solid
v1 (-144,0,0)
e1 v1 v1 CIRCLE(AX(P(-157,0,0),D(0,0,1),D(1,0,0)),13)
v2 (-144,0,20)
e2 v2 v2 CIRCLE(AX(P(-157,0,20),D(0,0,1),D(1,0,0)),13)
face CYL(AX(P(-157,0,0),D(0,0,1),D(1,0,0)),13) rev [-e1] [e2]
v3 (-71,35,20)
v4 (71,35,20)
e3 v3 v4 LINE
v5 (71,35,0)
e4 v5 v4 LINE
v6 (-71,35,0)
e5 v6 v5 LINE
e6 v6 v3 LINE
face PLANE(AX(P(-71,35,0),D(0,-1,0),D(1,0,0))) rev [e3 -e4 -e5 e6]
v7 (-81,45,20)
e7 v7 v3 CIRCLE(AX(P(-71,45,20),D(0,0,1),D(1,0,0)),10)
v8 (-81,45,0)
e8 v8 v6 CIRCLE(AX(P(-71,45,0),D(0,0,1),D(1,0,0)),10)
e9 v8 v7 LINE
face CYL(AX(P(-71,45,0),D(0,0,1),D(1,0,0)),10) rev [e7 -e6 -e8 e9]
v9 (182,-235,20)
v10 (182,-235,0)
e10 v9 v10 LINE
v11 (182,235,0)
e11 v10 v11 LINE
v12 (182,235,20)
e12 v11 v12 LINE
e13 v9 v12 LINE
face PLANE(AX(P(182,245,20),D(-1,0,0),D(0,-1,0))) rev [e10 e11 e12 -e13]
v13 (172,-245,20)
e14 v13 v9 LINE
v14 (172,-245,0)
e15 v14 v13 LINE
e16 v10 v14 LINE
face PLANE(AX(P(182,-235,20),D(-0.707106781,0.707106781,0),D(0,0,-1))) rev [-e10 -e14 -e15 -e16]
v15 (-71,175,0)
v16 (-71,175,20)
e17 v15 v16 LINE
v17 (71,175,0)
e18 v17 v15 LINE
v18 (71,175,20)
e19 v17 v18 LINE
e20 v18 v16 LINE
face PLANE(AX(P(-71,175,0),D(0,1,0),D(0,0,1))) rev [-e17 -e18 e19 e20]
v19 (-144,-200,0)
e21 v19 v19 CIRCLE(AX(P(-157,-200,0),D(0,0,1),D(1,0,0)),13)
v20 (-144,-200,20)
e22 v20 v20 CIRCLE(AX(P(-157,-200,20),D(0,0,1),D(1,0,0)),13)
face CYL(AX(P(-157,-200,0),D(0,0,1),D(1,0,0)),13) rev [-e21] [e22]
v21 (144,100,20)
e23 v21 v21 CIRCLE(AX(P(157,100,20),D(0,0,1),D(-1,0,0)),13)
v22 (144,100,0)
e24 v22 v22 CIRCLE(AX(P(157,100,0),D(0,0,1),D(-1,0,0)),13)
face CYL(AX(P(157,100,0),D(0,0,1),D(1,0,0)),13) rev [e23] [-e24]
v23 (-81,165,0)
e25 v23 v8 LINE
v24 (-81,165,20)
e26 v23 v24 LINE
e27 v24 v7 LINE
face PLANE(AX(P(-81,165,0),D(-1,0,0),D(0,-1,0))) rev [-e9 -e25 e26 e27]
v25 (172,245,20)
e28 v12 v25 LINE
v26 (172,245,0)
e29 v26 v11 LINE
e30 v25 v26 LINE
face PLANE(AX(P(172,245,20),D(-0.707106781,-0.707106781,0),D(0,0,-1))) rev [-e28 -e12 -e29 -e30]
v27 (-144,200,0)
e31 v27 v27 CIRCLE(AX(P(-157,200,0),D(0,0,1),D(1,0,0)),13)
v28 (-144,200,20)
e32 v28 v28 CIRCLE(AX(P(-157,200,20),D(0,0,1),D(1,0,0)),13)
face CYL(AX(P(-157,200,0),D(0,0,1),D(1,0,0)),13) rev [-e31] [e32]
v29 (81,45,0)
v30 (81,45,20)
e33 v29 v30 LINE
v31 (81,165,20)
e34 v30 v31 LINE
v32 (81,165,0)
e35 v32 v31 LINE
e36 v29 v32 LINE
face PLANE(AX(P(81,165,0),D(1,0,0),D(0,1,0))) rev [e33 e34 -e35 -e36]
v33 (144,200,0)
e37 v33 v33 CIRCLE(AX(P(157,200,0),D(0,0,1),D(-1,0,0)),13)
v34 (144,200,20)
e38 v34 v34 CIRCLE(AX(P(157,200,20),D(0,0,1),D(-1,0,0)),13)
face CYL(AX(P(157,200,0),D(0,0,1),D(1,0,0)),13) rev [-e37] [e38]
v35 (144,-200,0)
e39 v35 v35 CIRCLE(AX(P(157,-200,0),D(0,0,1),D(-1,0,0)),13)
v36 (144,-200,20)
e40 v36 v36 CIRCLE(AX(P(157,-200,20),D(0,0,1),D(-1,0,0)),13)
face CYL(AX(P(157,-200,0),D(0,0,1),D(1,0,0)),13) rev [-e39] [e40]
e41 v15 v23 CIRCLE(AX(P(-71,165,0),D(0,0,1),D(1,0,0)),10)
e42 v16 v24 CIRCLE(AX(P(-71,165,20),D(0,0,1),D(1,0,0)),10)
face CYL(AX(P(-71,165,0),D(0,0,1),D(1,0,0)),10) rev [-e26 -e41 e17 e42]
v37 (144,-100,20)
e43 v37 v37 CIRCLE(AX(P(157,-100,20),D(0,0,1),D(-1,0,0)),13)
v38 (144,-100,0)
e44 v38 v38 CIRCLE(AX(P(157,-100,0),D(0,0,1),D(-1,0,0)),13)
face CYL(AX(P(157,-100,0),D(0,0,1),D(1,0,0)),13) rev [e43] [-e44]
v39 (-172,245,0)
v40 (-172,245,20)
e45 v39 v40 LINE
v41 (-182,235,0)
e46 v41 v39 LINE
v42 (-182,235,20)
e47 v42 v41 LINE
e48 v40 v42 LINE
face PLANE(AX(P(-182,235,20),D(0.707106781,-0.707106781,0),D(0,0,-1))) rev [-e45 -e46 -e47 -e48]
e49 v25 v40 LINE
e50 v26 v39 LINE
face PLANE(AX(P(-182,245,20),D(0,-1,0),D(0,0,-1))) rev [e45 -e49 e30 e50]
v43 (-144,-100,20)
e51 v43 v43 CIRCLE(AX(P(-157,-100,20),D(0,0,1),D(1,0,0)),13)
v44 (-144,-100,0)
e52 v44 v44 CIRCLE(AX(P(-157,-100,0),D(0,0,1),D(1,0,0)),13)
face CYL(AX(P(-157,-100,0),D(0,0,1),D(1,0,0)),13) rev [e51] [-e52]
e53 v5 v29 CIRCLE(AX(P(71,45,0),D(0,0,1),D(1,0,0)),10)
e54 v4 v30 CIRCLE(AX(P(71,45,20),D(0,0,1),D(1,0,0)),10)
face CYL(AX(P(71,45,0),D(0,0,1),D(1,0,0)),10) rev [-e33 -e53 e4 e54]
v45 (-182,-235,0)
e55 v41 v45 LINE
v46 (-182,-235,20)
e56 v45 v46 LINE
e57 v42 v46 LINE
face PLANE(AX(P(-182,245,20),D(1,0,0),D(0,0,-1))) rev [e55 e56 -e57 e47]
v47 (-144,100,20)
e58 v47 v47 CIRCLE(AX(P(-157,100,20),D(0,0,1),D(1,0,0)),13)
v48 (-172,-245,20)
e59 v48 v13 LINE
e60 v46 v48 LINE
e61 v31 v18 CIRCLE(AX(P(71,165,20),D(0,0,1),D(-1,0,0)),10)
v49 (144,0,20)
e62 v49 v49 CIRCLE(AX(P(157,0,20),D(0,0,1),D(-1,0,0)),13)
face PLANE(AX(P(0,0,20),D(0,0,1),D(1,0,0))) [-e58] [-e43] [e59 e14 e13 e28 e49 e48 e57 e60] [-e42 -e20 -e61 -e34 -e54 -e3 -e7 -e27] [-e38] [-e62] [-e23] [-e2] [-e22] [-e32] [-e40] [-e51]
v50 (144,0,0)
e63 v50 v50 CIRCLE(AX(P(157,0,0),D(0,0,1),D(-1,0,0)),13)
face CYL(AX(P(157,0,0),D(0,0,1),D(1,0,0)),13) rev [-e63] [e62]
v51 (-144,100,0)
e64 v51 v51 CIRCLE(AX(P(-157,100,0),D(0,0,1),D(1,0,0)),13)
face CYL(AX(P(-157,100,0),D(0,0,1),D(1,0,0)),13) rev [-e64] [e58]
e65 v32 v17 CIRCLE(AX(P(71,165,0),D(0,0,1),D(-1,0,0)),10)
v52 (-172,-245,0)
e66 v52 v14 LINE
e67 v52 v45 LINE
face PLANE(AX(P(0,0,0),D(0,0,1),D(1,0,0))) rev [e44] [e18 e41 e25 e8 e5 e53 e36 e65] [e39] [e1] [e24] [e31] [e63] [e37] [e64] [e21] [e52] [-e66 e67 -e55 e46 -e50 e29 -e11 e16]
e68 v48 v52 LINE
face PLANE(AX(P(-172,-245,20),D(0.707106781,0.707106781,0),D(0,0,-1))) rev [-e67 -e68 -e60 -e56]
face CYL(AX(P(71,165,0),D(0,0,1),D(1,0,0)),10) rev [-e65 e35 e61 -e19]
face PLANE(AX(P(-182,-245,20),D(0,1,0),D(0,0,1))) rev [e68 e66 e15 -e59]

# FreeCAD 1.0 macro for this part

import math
import FreeCAD as App
import Part
import Sketcher

V = App.Vector


def edges_at(feature, points):
    """Names of the edges that pass closest to the given points."""
    edges = feature.Shape.Edges
    near = lambda p: min(range(len(edges)), key=lambda i: edges[i].distToShape(Part.Vertex(*p))[0])
    return sorted({f"Edge{near(p) + 1}" for p in points})

doc = App.newDocument("Part")
body = doc.addObject("PartDesign::Body", "Body")

# Sketch on XY plane
sketch1 = body.newObject("Sketcher::SketchObject", "Sketch")
sketch1.AttachmentSupport = (doc.getObject("XY_Plane"), [""])
sketch1.MapMode = "FlatFace"
sketch1.addGeometry(Part.LineSegment(V(-182, 245, 0), V(-182, -245, 0)), False)
sketch1.addGeometry(Part.LineSegment(V(-182, -245, 0), V(182, -245, 0)), False)
sketch1.addGeometry(Part.LineSegment(V(182, -245, 0), V(182, 245, 0)), False)
sketch1.addGeometry(Part.LineSegment(V(182, 245, 0), V(-182, 245, 0)), False)
sketch1.addConstraint(Sketcher.Constraint("Coincident", 0, 2, 1, 1))
sketch1.addConstraint(Sketcher.Constraint("Coincident", 1, 2, 2, 1))
sketch1.addConstraint(Sketcher.Constraint("Coincident", 2, 2, 3, 1))
sketch1.addConstraint(Sketcher.Constraint("Coincident", 3, 2, 0, 1))
sketch1.addConstraint(Sketcher.Constraint("Vertical", 0))
sketch1.addConstraint(Sketcher.Constraint("Horizontal", 1))
sketch1.addConstraint(Sketcher.Constraint("Vertical", 2))
sketch1.addConstraint(Sketcher.Constraint("Horizontal", 3))
sketch1.addConstraint(Sketcher.Constraint("Symmetric", 0, 2, 2, 2, -1, 1))
sketch1.addConstraint(Sketcher.Constraint("DistanceX", 1, 1, 1, 2, 364.0))
sketch1.addConstraint(Sketcher.Constraint("DistanceY", 0, 2, 0, 1, 490.0))
pad1 = body.newObject("PartDesign::Pad", "Pad")
pad1.Profile = sketch1
pad1.Length = 20

# Sketch on XY plane
sketch2 = body.newObject("Sketcher::SketchObject", "Sketch001")
sketch2.AttachmentSupport = (doc.getObject("XY_Plane"), [""])
sketch2.MapMode = "FlatFace"
sketch2.AttachmentOffset = App.Placement(V(0, 0, 20), App.Rotation())
sketch2.addGeometry(Part.Circle(V(-157, 200, 0), V(0, 0, 1), 13), False)
sketch2.addGeometry(Part.Circle(V(-157, 100, 0), V(0, 0, 1), 13), False)
sketch2.addGeometry(Part.Circle(V(-157, 0, 0), V(0, 0, 1), 13), False)
sketch2.addGeometry(Part.Circle(V(-157, -100, 0), V(0, 0, 1), 13), False)
sketch2.addGeometry(Part.Circle(V(-157, -200, 0), V(0, 0, 1), 13), False)
sketch2.addGeometry(Part.Circle(V(157, -200, 0), V(0, 0, 1), 13), False)
sketch2.addGeometry(Part.Circle(V(157, -100, 0), V(0, 0, 1), 13), False)
sketch2.addGeometry(Part.Circle(V(157, 0, 0), V(0, 0, 1), 13), False)
sketch2.addGeometry(Part.Circle(V(157, 100, 0), V(0, 0, 1), 13), False)
sketch2.addGeometry(Part.Circle(V(157, 200, 0), V(0, 0, 1), 13), False)
sketch2.addGeometry(Part.LineSegment(V(71, 175, 0), V(-71, 175, 0)), False)
sketch2.addGeometry(Part.ArcOfCircle(Part.Circle(V(-71, 165, 0), V(0, 0, 1), 10), math.radians(90), math.radians(180)), False)
sketch2.addGeometry(Part.LineSegment(V(-81, 165, 0), V(-81, 45, 0)), False)
sketch2.addGeometry(Part.ArcOfCircle(Part.Circle(V(-71, 45, 0), V(0, 0, 1), 10), math.radians(180), math.radians(270)), False)
sketch2.addGeometry(Part.LineSegment(V(-71, 35, 0), V(71, 35, 0)), False)
sketch2.addGeometry(Part.ArcOfCircle(Part.Circle(V(71, 45, 0), V(0, 0, 1), 10), math.radians(-90), math.radians(0)), False)
sketch2.addGeometry(Part.LineSegment(V(81, 45, 0), V(81, 165, 0)), False)
sketch2.addGeometry(Part.ArcOfCircle(Part.Circle(V(71, 165, 0), V(0, 0, 1), 10), math.radians(0), math.radians(90)), False)
sketch2.addConstraint(Sketcher.Constraint("Tangent", 10, 2, 11, 1))
sketch2.addConstraint(Sketcher.Constraint("Tangent", 11, 2, 12, 1))
sketch2.addConstraint(Sketcher.Constraint("Tangent", 12, 2, 13, 1))
sketch2.addConstraint(Sketcher.Constraint("Tangent", 13, 2, 14, 1))
sketch2.addConstraint(Sketcher.Constraint("Tangent", 14, 2, 15, 1))
sketch2.addConstraint(Sketcher.Constraint("Tangent", 15, 2, 16, 1))
sketch2.addConstraint(Sketcher.Constraint("Tangent", 16, 2, 17, 1))
sketch2.addConstraint(Sketcher.Constraint("Tangent", 17, 2, 10, 1))
sketch2.addConstraint(Sketcher.Constraint("Horizontal", 10))
sketch2.addConstraint(Sketcher.Constraint("Vertical", 12))
sketch2.addConstraint(Sketcher.Constraint("Horizontal", 14))
sketch2.addConstraint(Sketcher.Constraint("Vertical", 16))
sketch2.addConstraint(Sketcher.Constraint("Equal", 0, 1))
sketch2.addConstraint(Sketcher.Constraint("Equal", 1, 2))
sketch2.addConstraint(Sketcher.Constraint("Equal", 2, 3))
sketch2.addConstraint(Sketcher.Constraint("Equal", 3, 4))
sketch2.addConstraint(Sketcher.Constraint("Equal", 4, 5))
sketch2.addConstraint(Sketcher.Constraint("Equal", 5, 6))
sketch2.addConstraint(Sketcher.Constraint("Equal", 6, 7))
sketch2.addConstraint(Sketcher.Constraint("Equal", 7, 8))
sketch2.addConstraint(Sketcher.Constraint("Equal", 8, 9))
sketch2.addConstraint(Sketcher.Constraint("Equal", 11, 13))
sketch2.addConstraint(Sketcher.Constraint("Equal", 13, 15))
sketch2.addConstraint(Sketcher.Constraint("Equal", 15, 17))
sketch2.addConstraint(Sketcher.Constraint("Symmetric", 0, 3, 5, 3, -1, 1))
sketch2.addConstraint(Sketcher.Constraint("Symmetric", 1, 3, 6, 3, -1, 1))
sketch2.addConstraint(Sketcher.Constraint("Symmetric", 2, 3, 7, 3, -1, 1))
sketch2.addConstraint(Sketcher.Constraint("Symmetric", 3, 3, 8, 3, -1, 1))
sketch2.addConstraint(Sketcher.Constraint("Symmetric", 4, 3, 9, 3, -1, 1))
sketch2.addConstraint(Sketcher.Constraint("Symmetric", 4, 3, 5, 3, -2))
sketch2.addConstraint(Sketcher.Constraint("Symmetric", 3, 3, 6, 3, -2))
sketch2.addConstraint(Sketcher.Constraint("PointOnObject", 2, 3, -1))
sketch2.addConstraint(Sketcher.Constraint("Vertical", 0, 3, 1, 3))
sketch2.addConstraint(Sketcher.Constraint("Vertical", 1, 3, 2, 3))
sketch2.addConstraint(Sketcher.Constraint("Diameter", 0, 26.0))
sketch2.addConstraint(Sketcher.Constraint("Radius", 11, 10.0))
sketch2.addConstraint(Sketcher.Constraint("DistanceX", 10, 2, 10, 1, 142.0))
sketch2.addConstraint(Sketcher.Constraint("DistanceY", 12, 2, 12, 1, 120.0))
sketch2.addConstraint(Sketcher.Constraint("DistanceX", 0, 3, -1, 1, 157.0))
sketch2.addConstraint(Sketcher.Constraint("DistanceY", -1, 1, 0, 3, 200.0))
sketch2.addConstraint(Sketcher.Constraint("DistanceY", -1, 1, 1, 3, 100.0))
sketch2.addConstraint(Sketcher.Constraint("DistanceX", 11, 3, -1, 1, 71.0))
sketch2.addConstraint(Sketcher.Constraint("DistanceY", -1, 1, 11, 3, 165.0))
pocket1 = body.newObject("PartDesign::Pocket", "Pocket")
pocket1.Profile = sketch2
pocket1.Type = "ThroughAll"
doc.recompute()

chamfer = body.newObject("PartDesign::Chamfer", "Chamfer")
chamfer.Base = (pocket1, edges_at(pocket1, [
    (182, -245, 10),
    (-182, -245, 10),
    (-182, 245, 10),
    (182, 245, 10),
]))
chamfer.Size = 10

doc.recompute()
